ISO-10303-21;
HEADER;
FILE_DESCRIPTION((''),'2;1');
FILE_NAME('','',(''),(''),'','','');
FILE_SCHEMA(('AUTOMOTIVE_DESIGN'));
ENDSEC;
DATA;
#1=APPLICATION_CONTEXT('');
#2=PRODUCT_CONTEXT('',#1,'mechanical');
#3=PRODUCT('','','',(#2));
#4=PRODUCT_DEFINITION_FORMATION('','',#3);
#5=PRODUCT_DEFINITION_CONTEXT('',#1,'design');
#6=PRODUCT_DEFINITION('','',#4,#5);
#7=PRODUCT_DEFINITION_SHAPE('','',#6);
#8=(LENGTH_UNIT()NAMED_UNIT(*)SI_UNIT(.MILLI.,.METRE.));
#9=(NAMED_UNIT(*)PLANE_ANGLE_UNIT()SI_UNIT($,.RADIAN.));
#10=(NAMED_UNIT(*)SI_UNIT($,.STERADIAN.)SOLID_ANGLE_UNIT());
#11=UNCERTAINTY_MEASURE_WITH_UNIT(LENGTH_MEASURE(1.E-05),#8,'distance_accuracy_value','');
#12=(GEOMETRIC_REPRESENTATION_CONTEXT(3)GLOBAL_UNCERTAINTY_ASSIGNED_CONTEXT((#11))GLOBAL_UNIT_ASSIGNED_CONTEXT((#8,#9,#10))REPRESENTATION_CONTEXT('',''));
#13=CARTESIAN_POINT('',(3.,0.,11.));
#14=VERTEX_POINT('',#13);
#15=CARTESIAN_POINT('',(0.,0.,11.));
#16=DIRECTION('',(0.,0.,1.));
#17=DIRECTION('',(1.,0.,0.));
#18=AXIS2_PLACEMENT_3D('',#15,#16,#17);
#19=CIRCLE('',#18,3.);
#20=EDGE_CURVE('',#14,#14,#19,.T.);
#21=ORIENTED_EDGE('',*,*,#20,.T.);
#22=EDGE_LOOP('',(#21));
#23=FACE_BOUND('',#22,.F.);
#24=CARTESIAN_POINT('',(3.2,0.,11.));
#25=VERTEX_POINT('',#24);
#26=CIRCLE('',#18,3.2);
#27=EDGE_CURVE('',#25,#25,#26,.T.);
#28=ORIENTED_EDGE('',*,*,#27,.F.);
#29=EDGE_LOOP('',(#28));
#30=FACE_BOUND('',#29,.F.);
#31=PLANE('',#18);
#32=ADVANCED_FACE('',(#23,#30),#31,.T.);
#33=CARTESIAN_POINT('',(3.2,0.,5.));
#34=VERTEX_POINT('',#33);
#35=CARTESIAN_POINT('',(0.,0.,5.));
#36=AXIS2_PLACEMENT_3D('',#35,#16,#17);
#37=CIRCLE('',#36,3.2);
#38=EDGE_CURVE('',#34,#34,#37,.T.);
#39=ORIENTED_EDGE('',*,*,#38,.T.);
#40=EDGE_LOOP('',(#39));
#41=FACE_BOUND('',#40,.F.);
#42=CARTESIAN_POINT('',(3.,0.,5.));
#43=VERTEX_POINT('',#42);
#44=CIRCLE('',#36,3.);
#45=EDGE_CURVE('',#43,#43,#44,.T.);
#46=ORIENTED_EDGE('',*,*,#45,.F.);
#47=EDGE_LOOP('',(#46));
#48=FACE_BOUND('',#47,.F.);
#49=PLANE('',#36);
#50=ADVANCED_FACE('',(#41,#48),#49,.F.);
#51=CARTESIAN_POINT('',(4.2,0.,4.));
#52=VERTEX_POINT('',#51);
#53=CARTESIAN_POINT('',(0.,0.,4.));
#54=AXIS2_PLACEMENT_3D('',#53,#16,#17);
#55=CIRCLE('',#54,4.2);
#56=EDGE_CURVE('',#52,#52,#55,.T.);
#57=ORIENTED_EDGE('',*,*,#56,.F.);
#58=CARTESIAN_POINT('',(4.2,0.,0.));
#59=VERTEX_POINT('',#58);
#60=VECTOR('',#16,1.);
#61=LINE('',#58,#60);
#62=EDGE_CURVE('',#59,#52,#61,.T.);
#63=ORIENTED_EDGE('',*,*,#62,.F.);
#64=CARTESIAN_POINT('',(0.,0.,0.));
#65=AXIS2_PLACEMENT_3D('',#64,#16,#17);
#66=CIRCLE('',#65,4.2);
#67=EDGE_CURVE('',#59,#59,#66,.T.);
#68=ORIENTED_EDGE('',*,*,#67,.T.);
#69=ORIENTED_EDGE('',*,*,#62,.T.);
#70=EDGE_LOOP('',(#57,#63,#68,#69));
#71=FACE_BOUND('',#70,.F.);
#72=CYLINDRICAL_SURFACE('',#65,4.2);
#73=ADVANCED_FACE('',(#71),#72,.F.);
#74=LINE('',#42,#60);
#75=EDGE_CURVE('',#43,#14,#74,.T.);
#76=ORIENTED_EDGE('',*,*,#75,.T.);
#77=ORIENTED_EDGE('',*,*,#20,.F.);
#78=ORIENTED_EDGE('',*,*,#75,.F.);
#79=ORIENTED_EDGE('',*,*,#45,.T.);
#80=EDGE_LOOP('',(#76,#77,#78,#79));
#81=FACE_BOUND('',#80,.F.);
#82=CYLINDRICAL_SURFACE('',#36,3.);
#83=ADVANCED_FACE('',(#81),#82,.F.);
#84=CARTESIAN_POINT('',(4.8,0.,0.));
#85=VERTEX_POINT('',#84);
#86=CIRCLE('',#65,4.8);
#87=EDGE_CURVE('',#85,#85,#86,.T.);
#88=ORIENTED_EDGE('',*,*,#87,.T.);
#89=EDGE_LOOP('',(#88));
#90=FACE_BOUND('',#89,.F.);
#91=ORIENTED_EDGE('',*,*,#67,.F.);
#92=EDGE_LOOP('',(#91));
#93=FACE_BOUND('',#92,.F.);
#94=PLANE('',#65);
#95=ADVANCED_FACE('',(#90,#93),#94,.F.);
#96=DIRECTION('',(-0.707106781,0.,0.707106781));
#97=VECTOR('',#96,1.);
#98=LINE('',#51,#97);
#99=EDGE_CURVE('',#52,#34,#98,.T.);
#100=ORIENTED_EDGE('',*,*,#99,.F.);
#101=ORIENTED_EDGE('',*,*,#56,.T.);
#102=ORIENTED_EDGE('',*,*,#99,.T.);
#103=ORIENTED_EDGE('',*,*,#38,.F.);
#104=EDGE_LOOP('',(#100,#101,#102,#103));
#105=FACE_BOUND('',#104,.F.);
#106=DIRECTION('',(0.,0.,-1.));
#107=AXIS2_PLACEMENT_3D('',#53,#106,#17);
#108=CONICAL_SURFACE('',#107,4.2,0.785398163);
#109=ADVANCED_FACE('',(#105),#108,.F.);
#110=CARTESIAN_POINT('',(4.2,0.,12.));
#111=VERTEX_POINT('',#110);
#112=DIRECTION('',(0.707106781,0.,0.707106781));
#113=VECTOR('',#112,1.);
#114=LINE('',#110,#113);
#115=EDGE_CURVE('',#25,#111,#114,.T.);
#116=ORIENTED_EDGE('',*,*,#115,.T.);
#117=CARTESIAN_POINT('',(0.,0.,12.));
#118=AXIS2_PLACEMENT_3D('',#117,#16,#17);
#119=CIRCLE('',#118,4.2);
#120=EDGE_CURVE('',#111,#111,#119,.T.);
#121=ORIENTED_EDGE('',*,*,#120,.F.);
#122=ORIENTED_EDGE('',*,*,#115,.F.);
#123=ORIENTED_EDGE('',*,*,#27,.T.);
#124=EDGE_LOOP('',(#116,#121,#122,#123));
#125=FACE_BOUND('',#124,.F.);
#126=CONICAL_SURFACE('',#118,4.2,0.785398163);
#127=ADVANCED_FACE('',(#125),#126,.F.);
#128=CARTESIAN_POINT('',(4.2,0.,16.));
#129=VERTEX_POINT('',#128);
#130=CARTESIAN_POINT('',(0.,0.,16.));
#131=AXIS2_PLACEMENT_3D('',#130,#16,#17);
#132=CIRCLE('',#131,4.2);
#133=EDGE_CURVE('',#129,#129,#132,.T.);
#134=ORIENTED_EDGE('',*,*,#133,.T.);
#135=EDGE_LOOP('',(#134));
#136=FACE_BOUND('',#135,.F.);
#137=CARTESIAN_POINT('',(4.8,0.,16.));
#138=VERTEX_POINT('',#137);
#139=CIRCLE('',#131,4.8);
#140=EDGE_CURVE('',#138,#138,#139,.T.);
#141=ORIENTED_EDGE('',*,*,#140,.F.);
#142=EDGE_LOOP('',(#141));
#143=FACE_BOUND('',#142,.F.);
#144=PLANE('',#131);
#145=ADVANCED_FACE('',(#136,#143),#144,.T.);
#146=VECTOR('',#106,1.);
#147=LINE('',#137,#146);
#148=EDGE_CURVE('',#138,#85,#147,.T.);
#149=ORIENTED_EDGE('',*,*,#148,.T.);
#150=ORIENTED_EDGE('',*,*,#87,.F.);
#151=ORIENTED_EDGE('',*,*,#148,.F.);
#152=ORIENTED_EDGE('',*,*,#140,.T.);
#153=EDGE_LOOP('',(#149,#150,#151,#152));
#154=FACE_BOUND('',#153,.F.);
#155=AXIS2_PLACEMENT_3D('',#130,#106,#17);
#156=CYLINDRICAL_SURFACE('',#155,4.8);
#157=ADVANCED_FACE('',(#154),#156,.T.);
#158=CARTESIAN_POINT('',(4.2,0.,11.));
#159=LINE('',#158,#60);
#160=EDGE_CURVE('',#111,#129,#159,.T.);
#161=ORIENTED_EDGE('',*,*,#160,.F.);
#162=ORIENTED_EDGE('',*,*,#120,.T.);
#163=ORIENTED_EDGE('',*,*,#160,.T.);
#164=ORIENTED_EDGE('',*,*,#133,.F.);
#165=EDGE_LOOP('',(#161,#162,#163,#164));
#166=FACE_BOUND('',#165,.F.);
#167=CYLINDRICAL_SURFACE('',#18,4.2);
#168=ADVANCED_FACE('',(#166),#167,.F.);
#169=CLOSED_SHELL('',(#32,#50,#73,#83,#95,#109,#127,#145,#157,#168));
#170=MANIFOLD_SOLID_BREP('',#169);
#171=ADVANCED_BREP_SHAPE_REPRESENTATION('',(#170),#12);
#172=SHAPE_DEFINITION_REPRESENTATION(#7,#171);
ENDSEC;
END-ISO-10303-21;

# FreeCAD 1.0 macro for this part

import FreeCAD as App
import Part
import Sketcher


def edges_at(feature, points):
    """Names of the edges that pass closest to the given points."""
    edges = feature.Shape.Edges
    near = lambda p: min(range(len(edges)), key=lambda i: edges[i].distToShape(Part.Vertex(*p))[0])
    return sorted({f"Edge{near(p) + 1}" for p in points})


def add_polygon(sketch, points):
    """Adds a closed chain of lines whose ends are joined by coincident constraints."""
    first, n = sketch.GeometryCount, len(points)
    for a, b in zip(points, points[1:] + points[:1]):
        sketch.addGeometry(Part.LineSegment(App.Vector(*a, 0), App.Vector(*b, 0)), False)
    for i in range(n):
        sketch.addConstraint(Sketcher.Constraint("Coincident", first + i, 2, first + (i + 1) % n, 1))

doc = App.newDocument("Part")
body = doc.addObject("PartDesign::Body", "Body")

sketch1 = doc.addObject("Sketcher::SketchObject", "Sketch")
body.addObject(sketch1)
sketch1.AttachmentSupport = (doc.XZ_Plane, [""])
sketch1.MapMode = "FlatFace"
add_polygon(sketch1, [(4.2, 11), (3, 11), (3, 5), (4.2, 5), (4.2, 0), (4.8, 0), (4.8, 16), (4.2, 16)])
sketch1.addConstraint(Sketcher.Constraint("Horizontal", 0))
sketch1.addConstraint(Sketcher.Constraint("Vertical", 1))
sketch1.addConstraint(Sketcher.Constraint("Horizontal", 2))
sketch1.addConstraint(Sketcher.Constraint("Vertical", 3))
sketch1.addConstraint(Sketcher.Constraint("Horizontal", 4))
sketch1.addConstraint(Sketcher.Constraint("Vertical", 5))
sketch1.addConstraint(Sketcher.Constraint("Horizontal", 6))
sketch1.addConstraint(Sketcher.Constraint("Vertical", 7))
sketch1.addConstraint(Sketcher.Constraint("PointOnObject", 3, 2, -1))
sketch1.addConstraint(Sketcher.Constraint("Vertical", 3, 2, 6, 2))
sketch1.addConstraint(Sketcher.Constraint("Equal", 3, 7))
sketch1.addConstraint(Sketcher.Constraint("DistanceY", 1, 2, 1, 1, 6.0))
sketch1.addConstraint(Sketcher.Constraint("DistanceY", 3, 2, 3, 1, 5.0))
sketch1.addConstraint(Sketcher.Constraint("DistanceX", 0, 2, 0, 1, 1.2))
sketch1.addConstraint(Sketcher.Constraint("DistanceX", 4, 1, 4, 2, 0.6))
sketch1.addConstraint(Sketcher.Constraint("DistanceX", -1, 1, 0, 2, 3.0))
revolution = doc.addObject("PartDesign::Revolution", "Revolution")
body.addObject(revolution)
revolution.Profile = sketch1
revolution.ReferenceAxis = (sketch1, ["V_Axis"])
revolution.Angle = 360
doc.recompute()

chamfer = doc.addObject("PartDesign::Chamfer", "Chamfer")
body.addObject(chamfer)
chamfer.Base = (revolution, edges_at(revolution, [(-4.2, 0, 5), (-4.2, 0, 11)]))
chamfer.Size = 1

doc.recompute()
